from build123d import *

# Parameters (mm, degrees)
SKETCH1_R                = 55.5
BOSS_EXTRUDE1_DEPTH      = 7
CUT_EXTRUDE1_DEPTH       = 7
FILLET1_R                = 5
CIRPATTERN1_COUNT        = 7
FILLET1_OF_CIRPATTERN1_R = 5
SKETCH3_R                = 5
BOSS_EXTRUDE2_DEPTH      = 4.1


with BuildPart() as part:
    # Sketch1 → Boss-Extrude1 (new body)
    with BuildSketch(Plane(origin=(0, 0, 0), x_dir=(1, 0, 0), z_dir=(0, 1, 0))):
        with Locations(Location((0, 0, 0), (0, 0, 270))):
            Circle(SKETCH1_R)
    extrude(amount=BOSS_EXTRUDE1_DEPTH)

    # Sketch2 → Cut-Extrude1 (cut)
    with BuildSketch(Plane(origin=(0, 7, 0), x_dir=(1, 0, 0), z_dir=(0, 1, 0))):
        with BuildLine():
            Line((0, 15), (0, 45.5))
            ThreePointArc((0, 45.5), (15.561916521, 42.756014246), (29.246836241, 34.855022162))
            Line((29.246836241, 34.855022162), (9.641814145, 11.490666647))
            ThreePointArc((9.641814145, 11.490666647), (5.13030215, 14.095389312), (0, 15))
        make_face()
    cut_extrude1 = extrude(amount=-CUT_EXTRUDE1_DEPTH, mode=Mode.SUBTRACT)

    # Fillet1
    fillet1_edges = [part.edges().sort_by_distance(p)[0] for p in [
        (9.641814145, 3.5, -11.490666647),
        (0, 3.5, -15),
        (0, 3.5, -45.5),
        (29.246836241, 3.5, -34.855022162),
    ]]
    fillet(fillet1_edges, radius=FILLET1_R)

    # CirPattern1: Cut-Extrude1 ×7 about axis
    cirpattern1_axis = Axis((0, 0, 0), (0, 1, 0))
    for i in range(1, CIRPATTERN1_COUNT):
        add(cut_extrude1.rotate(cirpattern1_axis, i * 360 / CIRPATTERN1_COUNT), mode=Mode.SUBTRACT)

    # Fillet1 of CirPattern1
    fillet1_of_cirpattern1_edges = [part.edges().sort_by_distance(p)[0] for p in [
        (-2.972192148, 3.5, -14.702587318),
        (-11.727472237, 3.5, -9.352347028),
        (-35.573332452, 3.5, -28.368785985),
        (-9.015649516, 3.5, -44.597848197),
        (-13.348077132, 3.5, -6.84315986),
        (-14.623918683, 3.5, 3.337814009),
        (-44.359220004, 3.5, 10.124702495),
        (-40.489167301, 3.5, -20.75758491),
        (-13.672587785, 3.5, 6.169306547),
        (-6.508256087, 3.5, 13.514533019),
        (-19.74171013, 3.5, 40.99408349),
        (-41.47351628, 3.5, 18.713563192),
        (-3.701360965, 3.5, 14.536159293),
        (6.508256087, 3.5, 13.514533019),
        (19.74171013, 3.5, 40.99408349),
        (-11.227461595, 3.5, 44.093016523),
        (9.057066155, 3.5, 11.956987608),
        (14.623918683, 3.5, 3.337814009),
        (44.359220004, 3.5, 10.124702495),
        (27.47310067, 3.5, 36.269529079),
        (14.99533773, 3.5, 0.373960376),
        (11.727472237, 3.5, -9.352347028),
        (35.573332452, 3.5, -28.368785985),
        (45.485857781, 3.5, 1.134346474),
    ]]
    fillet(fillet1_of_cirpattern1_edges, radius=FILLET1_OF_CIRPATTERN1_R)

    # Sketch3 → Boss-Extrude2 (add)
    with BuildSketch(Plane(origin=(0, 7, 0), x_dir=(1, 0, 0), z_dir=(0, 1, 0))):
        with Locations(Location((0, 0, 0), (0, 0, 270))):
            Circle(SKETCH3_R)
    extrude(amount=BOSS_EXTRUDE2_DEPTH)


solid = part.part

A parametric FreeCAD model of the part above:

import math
import FreeCAD as App
import Part
import Sketcher
Q = App.Units.Quantity


def edges_at(feature, points):
    """Names of the edges that pass closest to the given points."""
    edges = feature.Shape.Edges
    near = lambda p: min(range(len(edges)), key=lambda i: edges[i].distToShape(Part.Vertex(*p))[0])
    return sorted({f"Edge{near(p) + 1}" for p in points})

doc = App.newDocument("Part")
params = doc.addObject("Spreadsheet::Sheet", "Params")
for row, (alias, value) in enumerate([
    ("sketch1_diameter", "111 mm"),
    ("pad1_length", "7 mm"),
    ("sketch2_radius", "15 mm"),
    ("sketch2_radius2", "45.5 mm"),
    ("pocket1_length", "7 mm"),
    ("fillet_radius", "5 mm"),
    ("fillet2_radius", "5 mm"),
    ("sketch3_diameter", "10 mm"),
    ("pad2_length", "4.1 mm"),
], start=1):
    params.set(f"A{row}", alias)
    params.set(f"B{row}", "=" + value)
    params.setAlias(f"B{row}", alias)

body = doc.addObject("PartDesign::Body", "Body")

# Sketch on XZ plane
sketch1 = body.newObject("Sketcher::SketchObject", "Sketch")
sketch1.AttachmentSupport = (doc.getObject("XZ_Plane"), [""])
sketch1.MapMode = "FlatFace"
sketch1.addGeometry(Part.Circle(App.Vector(0, 0, 0), App.Vector(0, 0, 1), 56), False)
sketch1.addConstraint(Sketcher.Constraint("Coincident", 0, 3, -1, 1))
sketch1.addConstraint(Sketcher.Constraint("Diameter", 0, Q("111 mm")))
sketch1.setExpression("Constraints[1]", "Params.sketch1_diameter")
pad1 = body.newObject("PartDesign::Pad", "Pad")
pad1.Profile = sketch1
pad1.setExpression("Length", "Params.pad1_length")
pad1.Reversed = True

# Sketch on XZ plane
sketch2 = body.newObject("Sketcher::SketchObject", "Sketch001")
sketch2.AttachmentSupport = (doc.getObject("XZ_Plane"), [""])
sketch2.MapMode = "FlatFace"
sketch2.AttachmentOffset = App.Placement(App.Vector(0, 0, -7), App.Rotation())
sketch2.addGeometry(Part.LineSegment(App.Vector(0, -46, 0), App.Vector(0, -15, 0)), False)
sketch2.addGeometry(Part.ArcOfCircle(Part.Circle(App.Vector(0, 0, 0), App.Vector(0, 0, 1), 15), math.radians(-90), math.radians(-50)), False)
sketch2.addGeometry(Part.LineSegment(App.Vector(10, -11, 0), App.Vector(29, -35, 0)), False)
sketch2.addGeometry(Part.ArcOfCircle(Part.Circle(App.Vector(0, 0, 0), App.Vector(0, 0, 1), 46), math.radians(-90), math.radians(-50)), False)
sketch2.addConstraint(Sketcher.Constraint("Coincident", 0, 2, 1, 1))
sketch2.addConstraint(Sketcher.Constraint("Coincident", 1, 2, 2, 1))
sketch2.addConstraint(Sketcher.Constraint("Coincident", 2, 2, 3, 2))
sketch2.addConstraint(Sketcher.Constraint("Coincident", 3, 1, 0, 1))
sketch2.addConstraint(Sketcher.Constraint("Vertical", 0))
sketch2.addConstraint(Sketcher.Constraint("Coincident", 1, 3, -1, 1))
sketch2.addConstraint(Sketcher.Constraint("Coincident", 3, 3, -1, 1))
sketch2.addConstraint(Sketcher.Constraint("PointOnObject", 0, 2, -2))
sketch2.addConstraint(Sketcher.Constraint("Radius", 1, Q("15 mm")))
sketch2.addConstraint(Sketcher.Constraint("Radius", 3, Q("45.5 mm")))
sketch2.addConstraint(Sketcher.Constraint("Angle", 2, Q("-50 deg")))
sketch2.addConstraint(Sketcher.Constraint("DistanceX", -1, 1, 1, 2, Q("9.641814 mm")))
sketch2.setExpression("Constraints[8]", "Params.sketch2_radius")
sketch2.setExpression("Constraints[9]", "Params.sketch2_radius2")
pocket1 = body.newObject("PartDesign::Pocket", "Pocket")
pocket1.Profile = sketch2
pocket1.setExpression("Length", "Params.pocket1_length")
pocket1.Reversed = True
doc.recompute()

fillet = body.newObject("PartDesign::Fillet", "Fillet")
fillet.Base = (pocket1, edges_at(pocket1, [
    (9.642, 3.5, -11.491),
    (0, 3.5, -15),
    (0, 3.5, -45.5),
    (29.247, 3.5, -34.855),
]))
fillet.setExpression("Radius", "Params.fillet_radius")
doc.recompute()

polarpattern = body.newObject("PartDesign::PolarPattern", "PolarPattern")
polarpattern.Originals = [pocket1]
polarpattern.Axis = (doc.getObject("Y_Axis"), [""])
polarpattern.Angle = 360
polarpattern.Occurrences = 7
body.Tip = polarpattern
doc.recompute()

fillet2 = body.newObject("PartDesign::Fillet", "Fillet001")
fillet2.Base = (polarpattern, edges_at(polarpattern, [
    (-2.972, 3.5, -14.703),
    (-11.727, 3.5, -9.352),
    (-35.573, 3.5, -28.369),
    (-9.016, 3.5, -44.598),
    (-13.348, 3.5, -6.843),
    (-14.624, 3.5, 3.338),
    (-44.359, 3.5, 10.125),
    (-40.489, 3.5, -20.758),
    (-13.673, 3.5, 6.169),
    (-6.508, 3.5, 13.515),
    (-19.742, 3.5, 40.994),
    (-41.474, 3.5, 18.714),
    (-3.701, 3.5, 14.536),
    (6.508, 3.5, 13.515),
    (19.742, 3.5, 40.994),
    (-11.227, 3.5, 44.093),
    (9.057, 3.5, 11.957),
    (14.624, 3.5, 3.338),
    (44.359, 3.5, 10.125),
    (27.473, 3.5, 36.27),
    (14.995, 3.5, 0.374),
    (11.727, 3.5, -9.352),
    (35.573, 3.5, -28.369),
    (45.486, 3.5, 1.134),
]))
fillet2.setExpression("Radius", "Params.fillet2_radius")

# Sketch on XZ plane
sketch3 = body.newObject("Sketcher::SketchObject", "Sketch002")
sketch3.AttachmentSupport = (doc.getObject("XZ_Plane"), [""])
sketch3.MapMode = "FlatFace"
sketch3.AttachmentOffset = App.Placement(App.Vector(0, 0, -7), App.Rotation())
sketch3.addGeometry(Part.Circle(App.Vector(0, 0, 0), App.Vector(0, 0, 1), 5), False)
sketch3.addConstraint(Sketcher.Constraint("Coincident", 0, 3, -1, 1))
sketch3.addConstraint(Sketcher.Constraint("Diameter", 0, Q("10 mm")))
sketch3.setExpression("Constraints[1]", "Params.sketch3_diameter")
pad2 = body.newObject("PartDesign::Pad", "Pad001")
pad2.Profile = sketch3
pad2.setExpression("Length", "Params.pad2_length")
pad2.Reversed = True

doc.recompute()
